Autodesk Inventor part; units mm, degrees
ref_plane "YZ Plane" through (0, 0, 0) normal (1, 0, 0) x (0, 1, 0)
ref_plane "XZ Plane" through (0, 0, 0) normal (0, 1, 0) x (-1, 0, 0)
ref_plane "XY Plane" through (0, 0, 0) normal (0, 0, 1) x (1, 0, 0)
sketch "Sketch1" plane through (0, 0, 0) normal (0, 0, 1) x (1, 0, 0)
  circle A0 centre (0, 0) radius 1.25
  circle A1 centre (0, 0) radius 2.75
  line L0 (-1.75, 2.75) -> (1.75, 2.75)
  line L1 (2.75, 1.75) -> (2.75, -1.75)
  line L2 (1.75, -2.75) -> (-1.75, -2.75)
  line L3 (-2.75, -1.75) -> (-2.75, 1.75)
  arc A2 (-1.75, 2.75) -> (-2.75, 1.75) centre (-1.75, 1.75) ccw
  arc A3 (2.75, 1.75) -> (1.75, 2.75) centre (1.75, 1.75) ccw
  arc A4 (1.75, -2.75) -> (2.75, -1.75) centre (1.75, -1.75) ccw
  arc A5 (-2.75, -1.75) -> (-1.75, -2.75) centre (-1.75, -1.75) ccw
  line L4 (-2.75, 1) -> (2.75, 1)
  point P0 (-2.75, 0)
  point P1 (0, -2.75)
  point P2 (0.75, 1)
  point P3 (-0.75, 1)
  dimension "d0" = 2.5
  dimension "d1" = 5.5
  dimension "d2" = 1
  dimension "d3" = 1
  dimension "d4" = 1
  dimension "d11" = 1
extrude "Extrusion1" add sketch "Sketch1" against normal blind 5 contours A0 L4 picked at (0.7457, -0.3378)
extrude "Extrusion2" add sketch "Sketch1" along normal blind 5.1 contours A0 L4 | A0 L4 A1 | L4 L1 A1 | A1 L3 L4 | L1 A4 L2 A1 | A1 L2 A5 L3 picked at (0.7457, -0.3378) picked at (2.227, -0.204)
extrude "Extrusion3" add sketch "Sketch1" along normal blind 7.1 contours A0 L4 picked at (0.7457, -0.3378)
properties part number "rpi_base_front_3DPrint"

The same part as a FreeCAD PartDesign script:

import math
import FreeCAD as App
import Part
import Sketcher
from FreeCAD import Vector
Q = App.Units.Quantity

doc = App.newDocument("Part")
body = doc.addObject("PartDesign::Body", "Body")

# Sketch on XY plane
sketch1 = body.newObject("Sketcher::SketchObject", "Sketch")
sketch1.AttachmentSupport = (doc.getObject("XY_Plane"), [""])
sketch1.MapMode = "FlatFace"
sketch1.addGeometry([
    Part.ArcOfCircle(Part.Circle(Vector(0, 0, 0), Vector(0, 0, 1), 1.25), math.radians(126.869898), math.radians(413.130102)),
    Part.LineSegment(Vector(0.75, 1, 0), Vector(-0.75, 1, 0)),
], False)
sketch1.addConstraint([
    Sketcher.Constraint("Coincident", 0, 1, 1, 2),
    Sketcher.Constraint("Coincident", 1, 1, 0, 2),
    Sketcher.Constraint("Horizontal", 1),
    Sketcher.Constraint("Coincident", 0, 3, -1, 1),
    Sketcher.Constraint("Radius", 0, Q("1.25 mm")),
    Sketcher.Constraint("DistanceY", -1, 1, 0, 1, Q("1 mm")),
])
pad1 = body.newObject("PartDesign::Pad", "Pad")
pad1.Profile = sketch1
pad1.Length = 5
pad1.Reversed = True

# Sketch on XY plane
sketch2 = body.newObject("Sketcher::SketchObject", "Sketch001")
sketch2.AttachmentSupport = (doc.getObject("XY_Plane"), [""])
sketch2.MapMode = "FlatFace"
sketch2.addGeometry([
    Part.LineSegment(Vector(-2.75, 1, 0), Vector(-2.75, -1.75, 0)),  # 0
    Part.ArcOfCircle(Part.Circle(Vector(-1.75, -1.75, 0), Vector(0, 0, 1), 1), math.radians(180), math.radians(270)),  # 1
    Part.LineSegment(Vector(-1.75, -2.75, 0), Vector(1.75, -2.75, 0)),  # 2
    Part.ArcOfCircle(Part.Circle(Vector(1.75, -1.75, 0), Vector(0, 0, 1), 1), math.radians(-90), math.radians(0)),  # 3
    Part.LineSegment(Vector(2.75, -1.75, 0), Vector(2.75, 1, 0)),  # 4
    Part.LineSegment(Vector(2.75, 1, 0), Vector(-2.75, 1, 0)),  # 5
], False)
sketch2.addConstraint([
    Sketcher.Constraint("Tangent", 0, 2, 1, 1),
    Sketcher.Constraint("Tangent", 1, 2, 2, 1),
    Sketcher.Constraint("Tangent", 2, 2, 3, 1),
    Sketcher.Constraint("Tangent", 3, 2, 4, 1),
    Sketcher.Constraint("Coincident", 4, 2, 5, 1),
    Sketcher.Constraint("Coincident", 5, 2, 0, 1),
    Sketcher.Constraint("Vertical", 0),
    Sketcher.Constraint("Horizontal", 2),
    Sketcher.Constraint("Vertical", 4),
    Sketcher.Constraint("Horizontal", 5),
    Sketcher.Constraint("Equal", 1, 3),
    Sketcher.Constraint("Radius", 1, Q("1 mm")),
    Sketcher.Constraint("DistanceX", 5, 2, 5, 1, Q("5.5 mm")),
    Sketcher.Constraint("DistanceY", -1, 1, 4, 2, Q("1 mm")),
    Sketcher.Constraint("DistanceY", 0, 2, 0, 1, Q("2.75 mm")),
    Sketcher.Constraint("DistanceX", 1, 3, -1, 1, Q("1.75 mm")),
])
pad2 = body.newObject("PartDesign::Pad", "Pad001")
pad2.Profile = sketch2
pad2.Length = 5.1

# Sketch on XY plane
sketch3 = body.newObject("Sketcher::SketchObject", "Sketch002")
sketch3.AttachmentSupport = (doc.getObject("XY_Plane"), [""])
sketch3.MapMode = "FlatFace"
sketch3.addGeometry([
    Part.ArcOfCircle(Part.Circle(Vector(0, 0, 0), Vector(0, 0, 1), 1.25), math.radians(126.869898), math.radians(413.130102)),
    Part.LineSegment(Vector(0.75, 1, 0), Vector(-0.75, 1, 0)),
], False)
sketch3.addConstraint([
    Sketcher.Constraint("Coincident", 0, 1, 1, 2),
    Sketcher.Constraint("Coincident", 1, 1, 0, 2),
    Sketcher.Constraint("Horizontal", 1),
    Sketcher.Constraint("Coincident", 0, 3, -1, 1),
    Sketcher.Constraint("Radius", 0, Q("1.25 mm")),
    Sketcher.Constraint("DistanceY", -1, 1, 0, 1, Q("1 mm")),
])
pad3 = body.newObject("PartDesign::Pad", "Pad002")
pad3.Profile = sketch3
pad3.Length = 7.1

doc.recompute()
